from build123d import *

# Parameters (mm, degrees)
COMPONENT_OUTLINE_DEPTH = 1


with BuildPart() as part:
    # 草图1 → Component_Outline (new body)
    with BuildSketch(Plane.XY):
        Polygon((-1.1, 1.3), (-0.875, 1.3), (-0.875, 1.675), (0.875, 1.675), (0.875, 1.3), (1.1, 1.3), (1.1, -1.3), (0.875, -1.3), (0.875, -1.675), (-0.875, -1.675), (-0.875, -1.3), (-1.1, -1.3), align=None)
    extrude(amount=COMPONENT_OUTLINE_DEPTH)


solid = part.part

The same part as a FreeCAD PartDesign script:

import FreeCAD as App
import Part
import Sketcher

V = App.Vector

doc = App.newDocument("Part")
body = doc.addObject("PartDesign::Body", "Body")

# Sketch on XY plane
sketch1 = doc.addObject("Sketcher::SketchObject", "Sketch")
body.addObject(sketch1)
sketch1.AttachmentSupport = (doc.XY_Plane, [""])
sketch1.MapMode = "FlatFace"
sketch1.addGeometry([
    Part.LineSegment(V(-0.875, 1.3, 0), V(-1.1, 1.3, 0)),  # 0
    Part.LineSegment(V(-1.1, 1.3, 0), V(-1.1, -1.3, 0)),  # 1
    Part.LineSegment(V(-1.1, -1.3, 0), V(-0.875, -1.3, 0)),  # 2
    Part.LineSegment(V(-0.875, -1.3, 0), V(-0.875, -1.675, 0)),  # 3
    Part.LineSegment(V(-0.875, -1.675, 0), V(0.875, -1.675, 0)),  # 4
    Part.LineSegment(V(0.875, -1.675, 0), V(0.875, -1.3, 0)),  # 5
    Part.LineSegment(V(0.875, -1.3, 0), V(1.1, -1.3, 0)),  # 6
    Part.LineSegment(V(1.1, -1.3, 0), V(1.1, 1.3, 0)),  # 7
    Part.LineSegment(V(1.1, 1.3, 0), V(0.875, 1.3, 0)),  # 8
    Part.LineSegment(V(0.875, 1.3, 0), V(0.875, 1.675, 0)),  # 9
    Part.LineSegment(V(0.875, 1.675, 0), V(-0.875, 1.675, 0)),  # 10
    Part.LineSegment(V(-0.875, 1.675, 0), V(-0.875, 1.3, 0)),  # 11
], False)
sketch1.addConstraint([
    Sketcher.Constraint("Coincident", 0, 2, 1, 1),
    Sketcher.Constraint("Coincident", 1, 2, 2, 1),
    Sketcher.Constraint("Coincident", 2, 2, 3, 1),
    Sketcher.Constraint("Coincident", 3, 2, 4, 1),
    Sketcher.Constraint("Coincident", 4, 2, 5, 1),
    Sketcher.Constraint("Coincident", 5, 2, 6, 1),
    Sketcher.Constraint("Coincident", 6, 2, 7, 1),
    Sketcher.Constraint("Coincident", 7, 2, 8, 1),
    Sketcher.Constraint("Coincident", 8, 2, 9, 1),
    Sketcher.Constraint("Coincident", 9, 2, 10, 1),
    Sketcher.Constraint("Coincident", 10, 2, 11, 1),
    Sketcher.Constraint("Coincident", 11, 2, 0, 1),
    Sketcher.Constraint("Horizontal", 0),
    Sketcher.Constraint("Vertical", 1),
    Sketcher.Constraint("Horizontal", 2),
    Sketcher.Constraint("Vertical", 3),
    Sketcher.Constraint("Horizontal", 4),
    Sketcher.Constraint("Vertical", 5),
    Sketcher.Constraint("Horizontal", 6),
    Sketcher.Constraint("Vertical", 7),
    Sketcher.Constraint("Horizontal", 8),
    Sketcher.Constraint("Vertical", 9),
    Sketcher.Constraint("Horizontal", 10),
    Sketcher.Constraint("Vertical", 11),
    Sketcher.Constraint("Symmetric", 0, 2, 6, 2, -1, 1),
    Sketcher.Constraint("Symmetric", 2, 2, 8, 2, -1, 1),
    Sketcher.Constraint("Symmetric", 4, 2, 10, 2, -1, 1),
    Sketcher.Constraint("Symmetric", 2, 2, 5, 2, -2),
    Sketcher.Constraint("DistanceY", 1, 2, 1, 1, 2.6),
    Sketcher.Constraint("DistanceX", 4, 1, 4, 2, 1.75),
    Sketcher.Constraint("DistanceX", 0, 2, -1, 1, 1.1),
    Sketcher.Constraint("DistanceY", 3, 2, 3, 1, 0.375),
])
pad1 = doc.addObject("PartDesign::Pad", "Pad")
body.addObject(pad1)
pad1.Profile = sketch1
pad1.Length = 1

doc.recompute()
